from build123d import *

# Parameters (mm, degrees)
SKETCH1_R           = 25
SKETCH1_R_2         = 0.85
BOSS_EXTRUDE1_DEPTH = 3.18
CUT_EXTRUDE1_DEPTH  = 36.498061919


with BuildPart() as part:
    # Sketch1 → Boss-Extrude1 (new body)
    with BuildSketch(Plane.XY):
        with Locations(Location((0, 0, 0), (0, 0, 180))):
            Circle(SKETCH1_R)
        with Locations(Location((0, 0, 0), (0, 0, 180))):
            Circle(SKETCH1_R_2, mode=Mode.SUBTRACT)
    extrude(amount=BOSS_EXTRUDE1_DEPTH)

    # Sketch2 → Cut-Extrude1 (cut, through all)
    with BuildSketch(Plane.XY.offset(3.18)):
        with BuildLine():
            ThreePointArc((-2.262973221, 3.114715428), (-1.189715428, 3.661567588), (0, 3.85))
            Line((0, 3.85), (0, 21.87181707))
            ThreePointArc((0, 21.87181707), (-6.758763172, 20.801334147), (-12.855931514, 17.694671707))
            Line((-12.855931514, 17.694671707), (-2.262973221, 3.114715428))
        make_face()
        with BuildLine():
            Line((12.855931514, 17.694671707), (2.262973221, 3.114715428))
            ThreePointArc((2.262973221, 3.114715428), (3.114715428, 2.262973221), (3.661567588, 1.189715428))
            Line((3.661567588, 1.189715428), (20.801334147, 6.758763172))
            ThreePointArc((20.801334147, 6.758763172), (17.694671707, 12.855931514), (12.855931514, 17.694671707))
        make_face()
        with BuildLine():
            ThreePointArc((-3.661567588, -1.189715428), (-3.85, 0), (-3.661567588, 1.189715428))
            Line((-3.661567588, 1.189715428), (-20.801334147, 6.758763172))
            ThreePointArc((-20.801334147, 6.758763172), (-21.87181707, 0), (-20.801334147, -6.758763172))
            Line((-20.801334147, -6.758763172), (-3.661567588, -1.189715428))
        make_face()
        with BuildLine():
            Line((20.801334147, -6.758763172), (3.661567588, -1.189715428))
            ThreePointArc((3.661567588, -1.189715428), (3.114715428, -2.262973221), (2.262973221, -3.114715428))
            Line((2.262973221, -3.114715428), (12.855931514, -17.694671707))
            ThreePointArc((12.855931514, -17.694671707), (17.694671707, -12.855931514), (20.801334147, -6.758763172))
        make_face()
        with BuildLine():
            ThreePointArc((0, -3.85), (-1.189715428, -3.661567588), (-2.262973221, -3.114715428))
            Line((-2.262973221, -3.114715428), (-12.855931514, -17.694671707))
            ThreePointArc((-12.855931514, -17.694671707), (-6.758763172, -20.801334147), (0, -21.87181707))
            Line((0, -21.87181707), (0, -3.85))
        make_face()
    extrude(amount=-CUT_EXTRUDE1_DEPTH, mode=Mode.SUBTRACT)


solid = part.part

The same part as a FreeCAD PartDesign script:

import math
import FreeCAD as App
import Part
import Sketcher

V = App.Vector
Q = App.Units.Quantity

doc = App.newDocument("Part")
body = doc.addObject("PartDesign::Body", "Body")

# Sketch on XY plane
sketch1 = body.newObject("Sketcher::SketchObject", "Sketch")
sketch1.AttachmentSupport = (doc.getObject("XY_Plane"), [""])
sketch1.MapMode = "FlatFace"
sketch1.addGeometry([
    Part.Circle(V(0, 0, 0), V(0, 0, 1), 25),
    Part.Circle(V(0, 0, 0), V(0, 0, 1), 0.8),
], False)
sketch1.addConstraint([
    Sketcher.Constraint("Coincident", 0, 3, -1, 1),
    Sketcher.Constraint("Coincident", 1, 3, -1, 1),
    Sketcher.Constraint("Diameter", 0, Q("50 mm")),
    Sketcher.Constraint("Diameter", 1, Q("1.7 mm")),
])
pad1 = body.newObject("PartDesign::Pad", "Pad")
pad1.Profile = sketch1
pad1.Length = 3.18

# Sketch on XY plane
sketch2 = body.newObject("Sketcher::SketchObject", "Sketch001")
sketch2.AttachmentSupport = (doc.getObject("XY_Plane"), [""])
sketch2.MapMode = "FlatFace"
sketch2.AttachmentOffset = App.Placement(V(0, 0, 3.18), App.Rotation())
sketch2.addGeometry([
    Part.ArcOfCircle(Part.Circle(V(0, 0, 0), V(0, 0, 1), 3.8), math.radians(90), math.radians(126)),  # 0
    Part.LineSegment(V(0, 3.9, 0), V(0, 21.9, 0)),  # 1
    Part.ArcOfCircle(Part.Circle(V(0, 0, 0), V(0, 0, 1), 21.9), math.radians(90), math.radians(126)),  # 2
    Part.LineSegment(V(-12.9, 17.7, 0), V(-2.3, 3.1, 0)),  # 3
    Part.LineSegment(V(12.9, 17.7, 0), V(2.3, 3.1, 0)),  # 4
    Part.ArcOfCircle(Part.Circle(V(0, 0, 0), V(0, 0, 1), 3.9), math.radians(18), math.radians(54)),  # 5
    Part.LineSegment(V(3.7, 1.2, 0), V(20.8, 6.8, 0)),  # 6
    Part.ArcOfCircle(Part.Circle(V(0, 0, 0), V(0, 0, 1), 21.9), math.radians(18), math.radians(54)),  # 7
    Part.ArcOfCircle(Part.Circle(V(0, 0, 0), V(0, 0, 1), 3.9), math.radians(162), math.radians(198)),  # 8
    Part.LineSegment(V(-3.7, 1.2, 0), V(-20.8, 6.8, 0)),  # 9
    Part.ArcOfCircle(Part.Circle(V(0, 0, 0), V(0, 0, 1), 21.9), math.radians(162), math.radians(198)),  # 10
    Part.LineSegment(V(-20.8, -6.8, 0), V(-3.7, -1.2, 0)),  # 11
    Part.LineSegment(V(20.8, -6.8, 0), V(3.7, -1.2, 0)),  # 12
    Part.ArcOfCircle(Part.Circle(V(0, 0, 0), V(0, 0, 1), 3.9), math.radians(-54), math.radians(-18)),  # 13
    Part.LineSegment(V(2.3, -3.1, 0), V(12.9, -17.7, 0)),  # 14
    Part.ArcOfCircle(Part.Circle(V(0, 0, 0), V(0, 0, 1), 21.9), math.radians(-54), math.radians(-18)),  # 15
    Part.ArcOfCircle(Part.Circle(V(0, 0, 0), V(0, 0, 1), 3.8), math.radians(-126), math.radians(-90)),  # 16
    Part.LineSegment(V(-2.3, -3.1, 0), V(-12.9, -17.7, 0)),  # 17
    Part.ArcOfCircle(Part.Circle(V(0, 0, 0), V(0, 0, 1), 21.9), math.radians(-126), math.radians(-90)),  # 18
    Part.LineSegment(V(0, -21.9, 0), V(0, -3.9, 0)),  # 19
], False)
sketch2.addConstraint([
    Sketcher.Constraint("Coincident", 0, 1, 1, 1),
    Sketcher.Constraint("Coincident", 1, 2, 2, 1),
    Sketcher.Constraint("Coincident", 2, 2, 3, 1),
    Sketcher.Constraint("Coincident", 3, 2, 0, 2),
    Sketcher.Constraint("Coincident", 4, 2, 5, 2),
    Sketcher.Constraint("Coincident", 5, 1, 6, 1),
    Sketcher.Constraint("Coincident", 6, 2, 7, 1),
    Sketcher.Constraint("Coincident", 7, 2, 4, 1),
    Sketcher.Constraint("Coincident", 8, 1, 9, 1),
    Sketcher.Constraint("Coincident", 9, 2, 10, 1),
    Sketcher.Constraint("Coincident", 10, 2, 11, 1),
    Sketcher.Constraint("Coincident", 11, 2, 8, 2),
    Sketcher.Constraint("Coincident", 12, 2, 13, 2),
    Sketcher.Constraint("Coincident", 13, 1, 14, 1),
    Sketcher.Constraint("Coincident", 14, 2, 15, 1),
    Sketcher.Constraint("Coincident", 15, 2, 12, 1),
    Sketcher.Constraint("Coincident", 16, 1, 17, 1),
    Sketcher.Constraint("Coincident", 17, 2, 18, 1),
    Sketcher.Constraint("Coincident", 18, 2, 19, 1),
    Sketcher.Constraint("Coincident", 19, 2, 16, 2),
    Sketcher.Constraint("Vertical", 1),
    Sketcher.Constraint("Vertical", 19),
    Sketcher.Constraint("Coincident", 0, 3, -1, 1),
    Sketcher.Constraint("Coincident", 2, 3, -1, 1),
    Sketcher.Constraint("Coincident", 5, 3, -1, 1),
    Sketcher.Constraint("Coincident", 7, 3, -1, 1),
    Sketcher.Constraint("Coincident", 8, 3, -1, 1),
    Sketcher.Constraint("Coincident", 10, 3, -1, 1),
    Sketcher.Constraint("Coincident", 13, 3, -1, 1),
    Sketcher.Constraint("Coincident", 15, 3, -1, 1),
    Sketcher.Constraint("Coincident", 16, 3, -1, 1),
    Sketcher.Constraint("Coincident", 18, 3, -1, 1),
    Sketcher.Constraint("Equal", 0, 5),
    Sketcher.Constraint("Equal", 2, 7),
    Sketcher.Constraint("Equal", 5, 8),
    Sketcher.Constraint("Equal", 7, 10),
    Sketcher.Constraint("Equal", 8, 13),
    Sketcher.Constraint("Equal", 10, 15),
    Sketcher.Constraint("Equal", 13, 16),
    Sketcher.Constraint("Equal", 15, 18),
    Sketcher.Constraint("PointOnObject", 0, 1, -2),
    Sketcher.Constraint("PointOnObject", 18, 2, -2),
    Sketcher.Constraint("Parallel", 6, 11),
    Sketcher.Constraint("Parallel", 9, 12),
    Sketcher.Constraint("Parallel", 3, 14),
    Sketcher.Constraint("Parallel", 4, 17),
    Sketcher.Constraint("Horizontal", 3, 2, 4, 2),
    Sketcher.Constraint("Horizontal", 2, 2, 7, 2),
    Sketcher.Constraint("Horizontal", 5, 1, 8, 1),
    Sketcher.Constraint("Horizontal", 6, 2, 9, 2),
    Sketcher.Constraint("Horizontal", 11, 2, 12, 2),
    Sketcher.Constraint("Horizontal", 13, 1, 16, 1),
    Sketcher.Constraint("Vertical", 9, 2, 10, 2),
    Sketcher.Constraint("Vertical", 4, 2, 13, 1),
    Sketcher.Constraint("Angle", 3, Q("-54 deg")),
    Sketcher.Constraint("Angle", 6, Q("18 deg")),
    Sketcher.Constraint("Radius", 0, Q("3.85 mm")),
    Sketcher.Constraint("Radius", 2, Q("21.871817 mm")),
    Sketcher.Constraint("DistanceY", 5, 1, 4, 2, Q("1.925 mm")),
    Sketcher.Constraint("DistanceY", 18, 2, 13, 1, Q("18.757102 mm")),
])
pocket1 = body.newObject("PartDesign::Pocket", "Pocket")
pocket1.Profile = sketch2
pocket1.Type = "ThroughAll"

doc.recompute()
